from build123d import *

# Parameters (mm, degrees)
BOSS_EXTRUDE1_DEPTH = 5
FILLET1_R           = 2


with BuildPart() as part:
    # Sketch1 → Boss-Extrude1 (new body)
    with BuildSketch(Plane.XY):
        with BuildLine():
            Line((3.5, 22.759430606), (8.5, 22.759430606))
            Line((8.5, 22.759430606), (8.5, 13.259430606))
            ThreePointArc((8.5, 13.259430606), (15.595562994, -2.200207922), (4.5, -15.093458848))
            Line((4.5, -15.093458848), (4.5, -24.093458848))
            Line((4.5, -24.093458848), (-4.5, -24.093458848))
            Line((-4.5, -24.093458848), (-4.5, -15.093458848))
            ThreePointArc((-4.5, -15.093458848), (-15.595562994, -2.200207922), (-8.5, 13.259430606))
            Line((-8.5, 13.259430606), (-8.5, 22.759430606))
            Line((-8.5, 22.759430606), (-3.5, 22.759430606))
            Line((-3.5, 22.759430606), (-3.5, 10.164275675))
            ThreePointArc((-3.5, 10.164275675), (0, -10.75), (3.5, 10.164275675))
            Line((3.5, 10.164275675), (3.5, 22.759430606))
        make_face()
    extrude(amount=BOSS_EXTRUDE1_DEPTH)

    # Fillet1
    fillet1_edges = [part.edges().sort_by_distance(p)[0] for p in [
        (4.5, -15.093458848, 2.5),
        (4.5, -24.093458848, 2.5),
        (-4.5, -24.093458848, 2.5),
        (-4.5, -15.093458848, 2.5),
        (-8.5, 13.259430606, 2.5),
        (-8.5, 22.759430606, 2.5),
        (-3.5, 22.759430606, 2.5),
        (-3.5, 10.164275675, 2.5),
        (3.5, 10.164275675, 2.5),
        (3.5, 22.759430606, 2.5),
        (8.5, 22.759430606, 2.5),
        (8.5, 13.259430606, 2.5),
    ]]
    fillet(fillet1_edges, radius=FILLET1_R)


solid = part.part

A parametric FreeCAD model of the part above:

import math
import FreeCAD as App
import Part
import Sketcher
Q = App.Units.Quantity


def edges_at(feature, points):
    """Names of the edges that pass closest to the given points."""
    edges = feature.Shape.Edges
    near = lambda p: min(range(len(edges)), key=lambda i: edges[i].distToShape(Part.Vertex(*p))[0])
    return sorted({f"Edge{near(p) + 1}" for p in points})

doc = App.newDocument("Part")
body = doc.addObject("PartDesign::Body", "Body")

sketch1 = body.newObject("Sketcher::SketchObject", "Sketch")
sketch1.AttachmentSupport = (doc.getObject("XY_Plane"), [""])
sketch1.MapMode = "FlatFace"
sketch1.addGeometry(Part.LineSegment(App.Vector(8, 23, 0), App.Vector(4, 23, 0)), False)
sketch1.addGeometry(Part.LineSegment(App.Vector(4, 23, 0), App.Vector(4, 10, 0)), False)
sketch1.addGeometry(Part.ArcOfCircle(Part.Circle(App.Vector(0, 0, 0), App.Vector(0, 0, 1), 11), math.radians(109), math.radians(431)), False)
sketch1.addGeometry(Part.LineSegment(App.Vector(-4, 10, 0), App.Vector(-4, 23, 0)), False)
sketch1.addGeometry(Part.LineSegment(App.Vector(-4, 23, 0), App.Vector(-8, 23, 0)), False)
sketch1.addGeometry(Part.LineSegment(App.Vector(-8, 23, 0), App.Vector(-8, 13, 0)), False)
sketch1.addGeometry(Part.ArcOfCircle(Part.Circle(App.Vector(0, 0, 0), App.Vector(0, 0, 1), 16), math.radians(123), math.radians(253)), False)
sketch1.addGeometry(Part.LineSegment(App.Vector(-4, -15, 0), App.Vector(-4, -24, 0)), False)
sketch1.addGeometry(Part.LineSegment(App.Vector(-4, -24, 0), App.Vector(4, -24, 0)), False)
sketch1.addGeometry(Part.LineSegment(App.Vector(4, -24, 0), App.Vector(4, -15, 0)), False)
sketch1.addGeometry(Part.ArcOfCircle(Part.Circle(App.Vector(0, 0, 0), App.Vector(0, 0, 1), 16), math.radians(-73), math.radians(57)), False)
sketch1.addGeometry(Part.LineSegment(App.Vector(8, 13, 0), App.Vector(8, 23, 0)), False)
sketch1.addConstraint(Sketcher.Constraint("Coincident", 0, 2, 1, 1))
sketch1.addConstraint(Sketcher.Constraint("Coincident", 1, 2, 2, 2))
sketch1.addConstraint(Sketcher.Constraint("Coincident", 2, 1, 3, 1))
sketch1.addConstraint(Sketcher.Constraint("Coincident", 3, 2, 4, 1))
sketch1.addConstraint(Sketcher.Constraint("Coincident", 4, 2, 5, 1))
sketch1.addConstraint(Sketcher.Constraint("Coincident", 5, 2, 6, 1))
sketch1.addConstraint(Sketcher.Constraint("Coincident", 6, 2, 7, 1))
sketch1.addConstraint(Sketcher.Constraint("Coincident", 7, 2, 8, 1))
sketch1.addConstraint(Sketcher.Constraint("Coincident", 8, 2, 9, 1))
sketch1.addConstraint(Sketcher.Constraint("Coincident", 9, 2, 10, 1))
sketch1.addConstraint(Sketcher.Constraint("Coincident", 10, 2, 11, 1))
sketch1.addConstraint(Sketcher.Constraint("Coincident", 11, 2, 0, 1))
sketch1.addConstraint(Sketcher.Constraint("Horizontal", 0))
sketch1.addConstraint(Sketcher.Constraint("Vertical", 1))
sketch1.addConstraint(Sketcher.Constraint("Vertical", 3))
sketch1.addConstraint(Sketcher.Constraint("Horizontal", 4))
sketch1.addConstraint(Sketcher.Constraint("Vertical", 5))
sketch1.addConstraint(Sketcher.Constraint("Vertical", 7))
sketch1.addConstraint(Sketcher.Constraint("Horizontal", 8))
sketch1.addConstraint(Sketcher.Constraint("Vertical", 9))
sketch1.addConstraint(Sketcher.Constraint("Vertical", 11))
sketch1.addConstraint(Sketcher.Constraint("Coincident", 2, 3, -1, 1))
sketch1.addConstraint(Sketcher.Constraint("Coincident", 6, 3, -1, 1))
sketch1.addConstraint(Sketcher.Constraint("Coincident", 10, 3, -1, 1))
sketch1.addConstraint(Sketcher.Constraint("Equal", 6, 10))
sketch1.addConstraint(Sketcher.Constraint("Symmetric", 0, 2, 3, 2, -2))
sketch1.addConstraint(Sketcher.Constraint("Horizontal", 6, 2, 9, 2))
sketch1.addConstraint(Sketcher.Constraint("Horizontal", 5, 2, 10, 2))
sketch1.addConstraint(Sketcher.Constraint("Equal", 8, 7))
sketch1.addConstraint(Sketcher.Constraint("DistanceX", 0, 2, 0, 1, Q("5 mm")))
sketch1.addConstraint(Sketcher.Constraint("DistanceX", 8, 1, 8, 2, Q("9 mm")))
sketch1.addConstraint(Sketcher.Constraint("Radius", 2, Q("10.75 mm")))
sketch1.addConstraint(Sketcher.Constraint("Radius", 6, Q("15.75 mm")))
sketch1.addConstraint(Sketcher.Constraint("DistanceY", 5, 2, 5, 1, Q("9.5 mm")))
sketch1.addConstraint(Sketcher.Constraint("DistanceX", 2, 1, 1, 2, Q("7 mm")))
pad1 = body.newObject("PartDesign::Pad", "Pad")
pad1.Profile = sketch1
pad1.Length = 5
doc.recompute()

fillet = body.newObject("PartDesign::Fillet", "Fillet")
fillet.Base = (pad1, edges_at(pad1, [
    (4.5, -15.093, 2.5),
    (4.5, -24.093, 2.5),
    (-4.5, -24.093, 2.5),
    (-4.5, -15.093, 2.5),
    (-8.5, 13.259, 2.5),
    (-8.5, 22.759, 2.5),
    (-3.5, 22.759, 2.5),
    (-3.5, 10.164, 2.5),
    (3.5, 10.164, 2.5),
    (3.5, 22.759, 2.5),
    (8.5, 22.759, 2.5),
    (8.5, 13.259, 2.5),
]))
fillet.Radius = 2

doc.recompute()
